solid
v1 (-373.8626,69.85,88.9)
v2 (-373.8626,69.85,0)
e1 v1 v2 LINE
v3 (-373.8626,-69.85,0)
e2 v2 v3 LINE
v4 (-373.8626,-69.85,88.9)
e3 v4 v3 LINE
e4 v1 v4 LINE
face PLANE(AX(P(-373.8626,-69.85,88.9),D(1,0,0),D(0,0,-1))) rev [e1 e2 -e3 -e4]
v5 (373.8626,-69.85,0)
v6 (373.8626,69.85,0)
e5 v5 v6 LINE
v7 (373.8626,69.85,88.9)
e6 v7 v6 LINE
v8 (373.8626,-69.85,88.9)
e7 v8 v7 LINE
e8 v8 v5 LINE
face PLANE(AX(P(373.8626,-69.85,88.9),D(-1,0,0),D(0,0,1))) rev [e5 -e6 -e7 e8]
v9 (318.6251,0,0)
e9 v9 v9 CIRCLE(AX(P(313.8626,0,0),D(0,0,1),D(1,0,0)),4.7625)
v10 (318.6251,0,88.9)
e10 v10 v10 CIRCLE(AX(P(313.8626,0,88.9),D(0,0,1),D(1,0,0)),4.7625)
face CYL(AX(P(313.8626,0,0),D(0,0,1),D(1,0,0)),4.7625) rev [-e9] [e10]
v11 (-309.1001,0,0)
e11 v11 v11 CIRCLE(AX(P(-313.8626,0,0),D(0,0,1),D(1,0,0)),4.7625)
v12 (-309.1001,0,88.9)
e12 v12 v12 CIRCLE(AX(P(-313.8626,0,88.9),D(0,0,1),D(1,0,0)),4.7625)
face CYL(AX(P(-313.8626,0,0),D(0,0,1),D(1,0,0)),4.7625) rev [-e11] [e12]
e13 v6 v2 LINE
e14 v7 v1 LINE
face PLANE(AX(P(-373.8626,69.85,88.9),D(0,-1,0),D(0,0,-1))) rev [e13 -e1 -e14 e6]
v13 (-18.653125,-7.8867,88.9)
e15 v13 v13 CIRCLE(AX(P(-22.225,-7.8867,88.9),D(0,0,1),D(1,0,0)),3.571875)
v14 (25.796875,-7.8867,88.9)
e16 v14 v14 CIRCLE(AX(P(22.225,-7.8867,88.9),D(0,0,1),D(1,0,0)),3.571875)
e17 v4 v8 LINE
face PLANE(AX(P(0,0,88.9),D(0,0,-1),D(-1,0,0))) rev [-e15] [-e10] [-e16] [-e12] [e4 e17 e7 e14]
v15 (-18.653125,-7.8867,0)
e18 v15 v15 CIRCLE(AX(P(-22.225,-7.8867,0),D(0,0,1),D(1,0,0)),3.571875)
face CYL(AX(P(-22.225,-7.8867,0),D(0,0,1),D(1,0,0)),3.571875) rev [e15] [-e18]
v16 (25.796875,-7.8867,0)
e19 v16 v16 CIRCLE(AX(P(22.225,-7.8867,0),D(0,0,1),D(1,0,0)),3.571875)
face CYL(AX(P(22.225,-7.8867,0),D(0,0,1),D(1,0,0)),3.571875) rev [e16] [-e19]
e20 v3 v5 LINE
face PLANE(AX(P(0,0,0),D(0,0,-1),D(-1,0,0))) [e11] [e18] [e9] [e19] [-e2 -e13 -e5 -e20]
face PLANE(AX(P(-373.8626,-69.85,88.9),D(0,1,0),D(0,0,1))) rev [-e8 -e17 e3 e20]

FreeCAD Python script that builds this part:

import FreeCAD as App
import Part
import Sketcher
from FreeCAD import Vector
Q = App.Units.Quantity

doc = App.newDocument("Part")
body = doc.addObject("PartDesign::Body", "Body")

# Sketch on XY plane
sketch1 = body.newObject("Sketcher::SketchObject", "Sketch")
sketch1.AttachmentSupport = (doc.getObject("XY_Plane"), [""])
sketch1.MapMode = "FlatFace"
sketch1.addGeometry(Part.LineSegment(Vector(-373.8626, 69.85, 0), Vector(-373.8626, -69.85, 0)), False)
sketch1.addGeometry(Part.LineSegment(Vector(-373.8626, -69.85, 0), Vector(373.8626, -69.85, 0)), False)
sketch1.addGeometry(Part.LineSegment(Vector(373.8626, -69.85, 0), Vector(373.8626, 69.85, 0)), False)
sketch1.addGeometry(Part.LineSegment(Vector(373.8626, 69.85, 0), Vector(-373.8626, 69.85, 0)), False)
sketch1.addConstraint(Sketcher.Constraint("Coincident", 0, 2, 1, 1))
sketch1.addConstraint(Sketcher.Constraint("Coincident", 1, 2, 2, 1))
sketch1.addConstraint(Sketcher.Constraint("Coincident", 2, 2, 3, 1))
sketch1.addConstraint(Sketcher.Constraint("Coincident", 3, 2, 0, 1))
sketch1.addConstraint(Sketcher.Constraint("Vertical", 0))
sketch1.addConstraint(Sketcher.Constraint("Horizontal", 1))
sketch1.addConstraint(Sketcher.Constraint("Vertical", 2))
sketch1.addConstraint(Sketcher.Constraint("Horizontal", 3))
sketch1.addConstraint(Sketcher.Constraint("Symmetric", 0, 2, 2, 2, -1, 1))
sketch1.addConstraint(Sketcher.Constraint("DistanceY", 0, 2, 0, 1, Q("5.5 in")))
sketch1.addConstraint(Sketcher.Constraint("DistanceX", 1, 1, 1, 2, Q("29.438 in")))
pad1 = body.newObject("PartDesign::Pad", "Pad")
pad1.Profile = sketch1
pad1.Length = Q("3.5 in")

# Sketch on XY plane
sketch2 = body.newObject("Sketcher::SketchObject", "Sketch001")
sketch2.AttachmentSupport = (doc.getObject("XY_Plane"), [""])
sketch2.MapMode = "FlatFace"
sketch2.AttachmentOffset = App.Placement(Vector(0, 0, 3.5 * 25.4), App.Rotation())
sketch2.addGeometry(Part.Circle(Vector(-313.8626, 0, 0), Vector(0, 0, 1), 4.7625), False)
sketch2.addGeometry(Part.Circle(Vector(313.8626, 0, 0), Vector(0, 0, 1), 4.7625), False)
sketch2.addConstraint(Sketcher.Constraint("Equal", 0, 1))
sketch2.addConstraint(Sketcher.Constraint("Symmetric", 0, 3, 1, 3, -1, 1))
sketch2.addConstraint(Sketcher.Constraint("PointOnObject", 0, 3, -1))
sketch2.addConstraint(Sketcher.Constraint("Diameter", 0, Q("0.375 in")))
sketch2.addConstraint(Sketcher.Constraint("DistanceX", 0, 3, -1, 1, 313.8626))
pocket1 = body.newObject("PartDesign::Pocket", "Pocket")
pocket1.Profile = sketch2
pocket1.Type = "ThroughAll"

# Sketch on XY plane
sketch3 = body.newObject("Sketcher::SketchObject", "Sketch002")
sketch3.AttachmentSupport = (doc.getObject("XY_Plane"), [""])
sketch3.MapMode = "FlatFace"
sketch3.AttachmentOffset = App.Placement(Vector(0, 0, 3.5 * 25.4), App.Rotation())
sketch3.addGeometry(Part.Circle(Vector(-22.225, -7.8867, 0), Vector(0, 0, 1), 3.571875), False)
sketch3.addGeometry(Part.Circle(Vector(22.225, -7.8867, 0), Vector(0, 0, 1), 3.571875), False)
sketch3.addConstraint(Sketcher.Constraint("Equal", 0, 1))
sketch3.addConstraint(Sketcher.Constraint("Symmetric", 0, 3, 1, 3, -2))
sketch3.addConstraint(Sketcher.Constraint("Diameter", 0, Q("0.28125 in")))
sketch3.addConstraint(Sketcher.Constraint("DistanceX", 0, 3, 1, 3, Q("1.75 in")))
sketch3.addConstraint(Sketcher.Constraint("DistanceY", 0, 3, -1, 1, Q("0.3105 in")))
pocket2 = body.newObject("PartDesign::Pocket", "Pocket001")
pocket2.Profile = sketch3
pocket2.Type = "ThroughAll"

doc.recompute()
